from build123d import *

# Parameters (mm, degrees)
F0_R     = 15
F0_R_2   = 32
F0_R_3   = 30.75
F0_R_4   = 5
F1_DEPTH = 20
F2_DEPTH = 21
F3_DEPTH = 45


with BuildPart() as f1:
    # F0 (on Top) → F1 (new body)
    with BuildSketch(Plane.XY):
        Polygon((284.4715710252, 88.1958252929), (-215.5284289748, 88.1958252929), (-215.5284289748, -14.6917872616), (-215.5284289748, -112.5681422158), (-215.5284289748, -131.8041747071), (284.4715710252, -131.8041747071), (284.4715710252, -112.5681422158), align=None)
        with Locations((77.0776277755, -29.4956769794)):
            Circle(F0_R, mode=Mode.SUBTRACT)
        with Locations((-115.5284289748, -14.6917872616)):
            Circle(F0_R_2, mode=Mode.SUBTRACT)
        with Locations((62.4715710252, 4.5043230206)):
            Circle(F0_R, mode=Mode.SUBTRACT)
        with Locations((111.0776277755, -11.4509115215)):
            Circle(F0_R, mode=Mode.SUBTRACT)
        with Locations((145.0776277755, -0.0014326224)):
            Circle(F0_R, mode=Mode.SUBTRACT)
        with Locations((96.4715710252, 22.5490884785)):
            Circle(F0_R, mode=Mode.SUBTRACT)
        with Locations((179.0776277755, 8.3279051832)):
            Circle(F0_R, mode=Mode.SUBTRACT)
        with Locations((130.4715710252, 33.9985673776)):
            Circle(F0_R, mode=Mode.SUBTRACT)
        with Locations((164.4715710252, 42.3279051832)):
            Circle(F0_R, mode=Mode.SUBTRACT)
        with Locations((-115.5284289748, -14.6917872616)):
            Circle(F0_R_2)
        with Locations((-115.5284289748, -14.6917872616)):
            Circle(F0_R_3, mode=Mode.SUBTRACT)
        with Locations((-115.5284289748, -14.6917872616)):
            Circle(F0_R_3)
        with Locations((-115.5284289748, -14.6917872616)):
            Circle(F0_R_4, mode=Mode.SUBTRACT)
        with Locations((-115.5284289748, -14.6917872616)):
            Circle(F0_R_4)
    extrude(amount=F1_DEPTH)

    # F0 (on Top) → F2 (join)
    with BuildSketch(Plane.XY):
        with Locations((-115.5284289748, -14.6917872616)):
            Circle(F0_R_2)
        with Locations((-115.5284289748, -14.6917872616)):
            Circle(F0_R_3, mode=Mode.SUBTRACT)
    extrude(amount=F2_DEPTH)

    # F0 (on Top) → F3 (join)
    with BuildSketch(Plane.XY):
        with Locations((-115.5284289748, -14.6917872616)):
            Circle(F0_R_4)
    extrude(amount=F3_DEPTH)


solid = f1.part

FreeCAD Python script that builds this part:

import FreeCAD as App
import Part
import Sketcher

V = App.Vector

doc = App.newDocument("Part")
body = doc.addObject("PartDesign::Body", "Body")

# Sketch on XY plane
sketch1 = body.newObject("Sketcher::SketchObject", "Sketch")
sketch1.AttachmentSupport = (doc.getObject("XY_Plane"), [""])
sketch1.MapMode = "FlatFace"
sketch1.addGeometry([
    Part.LineSegment(V(284.471571, 88.195825, 0), V(-215.528429, 88.195825, 0)),  # 0
    Part.LineSegment(V(-215.528429, 88.195825, 0), V(-215.528429, -131.804175, 0)),  # 1
    Part.LineSegment(V(-215.528429, -131.804175, 0), V(284.471571, -131.804175, 0)),  # 2
    Part.LineSegment(V(284.471571, -131.804175, 0), V(284.471571, 88.195825, 0)),  # 3
    Part.Circle(V(77.077628, -29.495677, 0), V(0, 0, 1), 15),  # 4
    Part.Circle(V(111.077628, -11.450912, 0), V(0, 0, 1), 15),  # 5
    Part.Circle(V(62.471571, 4.504323, 0), V(0, 0, 1), 15),  # 6
    Part.Circle(V(145.077628, -0.001433, 0), V(0, 0, 1), 15),  # 7
    Part.Circle(V(96.471571, 22.549088, 0), V(0, 0, 1), 15),  # 8
    Part.Circle(V(179.077628, 8.327905, 0), V(0, 0, 1), 15),  # 9
    Part.Circle(V(130.471571, 33.998567, 0), V(0, 0, 1), 15),  # 10
    Part.Circle(V(164.471571, 42.327905, 0), V(0, 0, 1), 15),  # 11
], False)
sketch1.addConstraint([
    Sketcher.Constraint("Coincident", 0, 2, 1, 1),
    Sketcher.Constraint("Coincident", 1, 2, 2, 1),
    Sketcher.Constraint("Coincident", 2, 2, 3, 1),
    Sketcher.Constraint("Coincident", 3, 2, 0, 1),
    Sketcher.Constraint("Horizontal", 0),
    Sketcher.Constraint("Vertical", 1),
    Sketcher.Constraint("Horizontal", 2),
    Sketcher.Constraint("Vertical", 3),
    Sketcher.Constraint("Equal", 4, 5),
    Sketcher.Constraint("Equal", 5, 6),
    Sketcher.Constraint("Equal", 6, 7),
    Sketcher.Constraint("Equal", 7, 8),
    Sketcher.Constraint("Equal", 8, 9),
    Sketcher.Constraint("Equal", 9, 10),
    Sketcher.Constraint("Equal", 10, 11),
    Sketcher.Constraint("Diameter", 4, 30.0),
    Sketcher.Constraint("DistanceX", 0, 2, 0, 1, 500.0),
    Sketcher.Constraint("DistanceY", 1, 2, 1, 1, 220.0),
    Sketcher.Constraint("DistanceX", 4, 3, 5, 3, 34.0),
    Sketcher.Constraint("DistanceY", 4, 3, 6, 3, 34.0),
    Sketcher.Constraint("DistanceX", 5, 3, 7, 3, 34.0),
    Sketcher.Constraint("DistanceY", 5, 3, 8, 3, 34.0),
    Sketcher.Constraint("DistanceX", 6, 3, 8, 3, 34.0),
    Sketcher.Constraint("DistanceX", 7, 3, 9, 3, 34.0),
    Sketcher.Constraint("DistanceX", 8, 3, 10, 3, 34.0),
    Sketcher.Constraint("DistanceY", 7, 3, 10, 3, 34.0),
    Sketcher.Constraint("DistanceX", 10, 3, 11, 3, 34.0),
    Sketcher.Constraint("DistanceY", 9, 3, 11, 3, 34.0),
    Sketcher.Constraint("DistanceX", 0, 2, 6, 3, 278.0),
    Sketcher.Constraint("DistanceY", 5, 3, -1, 1, 11.450912),
    Sketcher.Constraint("DistanceX", -1, 1, 6, 3, 62.471571),
    Sketcher.Constraint("DistanceY", 5, 3, 7, 3, 11.449479),
    Sketcher.Constraint("DistanceY", 2, 2, 9, 3, 140.13208),
    Sketcher.Constraint("DistanceX", -1, 1, 4, 3, 77.077628),
    Sketcher.Constraint("DistanceY", 4, 3, -1, 1, 29.495677),
    Sketcher.Constraint("DistanceY", -1, 1, 9, 3, 8.327905),
])
pad1 = body.newObject("PartDesign::Pad", "Pad")
pad1.Profile = sketch1
pad1.Length = 20

# Sketch on XY plane
sketch2 = body.newObject("Sketcher::SketchObject", "Sketch001")
sketch2.AttachmentSupport = (doc.getObject("XY_Plane"), [""])
sketch2.MapMode = "FlatFace"
sketch2.addGeometry([
    Part.Circle(V(-115.528429, -14.691787, 0), V(0, 0, 1), 32),
    Part.Circle(V(-115.528429, -14.691787, 0), V(0, 0, 1), 30.75),
], False)
sketch2.addConstraint([
    Sketcher.Constraint("Coincident", 1, 3, 0, 3),
    Sketcher.Constraint("Diameter", 0, 64.0),
    Sketcher.Constraint("Diameter", 1, 61.5),
    Sketcher.Constraint("DistanceX", 0, 3, -1, 1, 115.528429),
    Sketcher.Constraint("DistanceY", 0, 3, -1, 1, 14.691787),
])
pad2 = body.newObject("PartDesign::Pad", "Pad001")
pad2.Profile = sketch2
pad2.Length = 21

# Sketch on XY plane
sketch3 = body.newObject("Sketcher::SketchObject", "Sketch002")
sketch3.AttachmentSupport = (doc.getObject("XY_Plane"), [""])
sketch3.MapMode = "FlatFace"
sketch3.addGeometry(Part.Circle(V(-115.528429, -14.691787, 0), V(0, 0, 1), 5), False)
sketch3.addConstraint([
    Sketcher.Constraint("Diameter", 0, 10.0),
    Sketcher.Constraint("DistanceX", 0, 3, -1, 1, 115.528429),
    Sketcher.Constraint("DistanceY", 0, 3, -1, 1, 14.691787),
])
pad3 = body.newObject("PartDesign::Pad", "Pad002")
pad3.Profile = sketch3
pad3.Length = 45

doc.recompute()
